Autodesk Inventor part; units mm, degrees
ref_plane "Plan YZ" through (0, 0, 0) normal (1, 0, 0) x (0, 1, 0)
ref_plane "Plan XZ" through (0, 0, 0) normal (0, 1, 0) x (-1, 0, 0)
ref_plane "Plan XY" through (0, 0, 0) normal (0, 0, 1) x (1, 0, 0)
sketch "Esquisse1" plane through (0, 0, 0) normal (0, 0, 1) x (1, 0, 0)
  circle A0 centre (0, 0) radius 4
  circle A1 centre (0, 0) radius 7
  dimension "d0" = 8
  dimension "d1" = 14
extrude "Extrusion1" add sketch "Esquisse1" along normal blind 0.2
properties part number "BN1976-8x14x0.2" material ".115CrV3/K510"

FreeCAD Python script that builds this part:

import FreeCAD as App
import Part
import Sketcher
Q = App.Units.Quantity

doc = App.newDocument("Part")
params = doc.addObject("Spreadsheet::Sheet", "Params")
for row, (alias, value) in enumerate([
    ("sketch1_diameter", "14 mm"),
    ("sketch1_diameter2", "8 mm"),
    ("pad1_length", "0.2 mm"),
], start=1):
    params.set(f"A{row}", alias)
    params.set(f"B{row}", "=" + value)
    params.setAlias(f"B{row}", alias)

body = doc.addObject("PartDesign::Body", "Body")

# Sketch on XY plane
sketch1 = doc.addObject("Sketcher::SketchObject", "Sketch")
body.addObject(sketch1)
sketch1.AttachmentSupport = (doc.XY_Plane, [""])
sketch1.MapMode = "FlatFace"
sketch1.addGeometry(Part.Circle(App.Vector(0, 0, 0), App.Vector(0, 0, 1), 7), False)
sketch1.addGeometry(Part.Circle(App.Vector(0, 0, 0), App.Vector(0, 0, 1), 4), False)
sketch1.addConstraint(Sketcher.Constraint("Coincident", 0, 3, -1, 1))
sketch1.addConstraint(Sketcher.Constraint("Coincident", 1, 3, -1, 1))
sketch1.addConstraint(Sketcher.Constraint("Diameter", 0, Q("14 mm")))
sketch1.addConstraint(Sketcher.Constraint("Diameter", 1, Q("8 mm")))
sketch1.setExpression("Constraints[2]", "Params.sketch1_diameter")
sketch1.setExpression("Constraints[3]", "Params.sketch1_diameter2")
pad1 = doc.addObject("PartDesign::Pad", "Pad")
body.addObject(pad1)
pad1.Profile = sketch1
pad1.setExpression("Length", "Params.pad1_length")

doc.recompute()
